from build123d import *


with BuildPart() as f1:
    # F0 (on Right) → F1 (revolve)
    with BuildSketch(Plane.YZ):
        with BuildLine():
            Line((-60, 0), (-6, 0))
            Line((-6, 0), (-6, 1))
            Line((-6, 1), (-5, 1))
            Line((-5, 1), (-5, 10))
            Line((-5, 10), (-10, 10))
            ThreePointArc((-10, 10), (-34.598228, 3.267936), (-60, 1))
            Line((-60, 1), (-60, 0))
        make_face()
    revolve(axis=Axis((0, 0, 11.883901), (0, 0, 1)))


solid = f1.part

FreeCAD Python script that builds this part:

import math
import FreeCAD as App
import Part
import Sketcher

V = App.Vector

doc = App.newDocument("Part")
body = doc.addObject("PartDesign::Body", "Body")

sketch1 = body.newObject("Sketcher::SketchObject", "Sketch")
sketch1.AttachmentSupport = (doc.getObject("YZ_Plane"), [""])
sketch1.MapMode = "FlatFace"
sketch1.addGeometry([
    Part.LineSegment(V(-60, 0, 0), V(-6, 0, 0)),
    Part.LineSegment(V(-6, 0, 0), V(-6, 1, 0)),
    Part.LineSegment(V(-6, 1, 0), V(-5, 1, 0)),
    Part.LineSegment(V(-5, 1, 0), V(-5, 10, 0)),
    Part.LineSegment(V(-5, 10, 0), V(-10, 10, 0)),
    Part.ArcOfCircle(Part.Circle(V(-60, 144.4, 0), V(0, 0, 1), 143.4), math.radians(-90), math.radians(-70)),
    Part.LineSegment(V(-60, 1, 0), V(-60, 0, 0)),
], False)
sketch1.addConstraint([
    Sketcher.Constraint("Coincident", 0, 2, 1, 1),
    Sketcher.Constraint("Coincident", 1, 2, 2, 1),
    Sketcher.Constraint("Coincident", 2, 2, 3, 1),
    Sketcher.Constraint("Coincident", 3, 2, 4, 1),
    Sketcher.Constraint("Coincident", 4, 2, 5, 2),
    Sketcher.Constraint("Coincident", 5, 1, 6, 1),
    Sketcher.Constraint("Coincident", 6, 2, 0, 1),
    Sketcher.Constraint("Horizontal", 0),
    Sketcher.Constraint("Vertical", 1),
    Sketcher.Constraint("Horizontal", 2),
    Sketcher.Constraint("Vertical", 3),
    Sketcher.Constraint("Horizontal", 4),
    Sketcher.Constraint("Vertical", 6),
    Sketcher.Constraint("PointOnObject", 0, 2, -1),
    Sketcher.Constraint("Horizontal", 2, 2, 5, 1),
    Sketcher.Constraint("Equal", 2, 1),
    Sketcher.Constraint("DistanceX", 0, 1, 0, 2, 54.0),
    Sketcher.Constraint("DistanceX", 2, 1, 2, 2, 1.0),
    Sketcher.Constraint("DistanceX", 4, 2, 4, 1, 5.0),
    Sketcher.Constraint("DistanceY", 3, 1, 3, 2, 9.0),
    Sketcher.Constraint("DistanceX", 0, 2, -1, 1, 6.0),
    Sketcher.Constraint("Radius", 5, 143.388909),
])
revolution = body.newObject("PartDesign::Revolution", "Revolution")
revolution.Profile = sketch1
revolution.ReferenceAxis = (sketch1, ["V_Axis"])
revolution.Angle = 360

doc.recompute()
